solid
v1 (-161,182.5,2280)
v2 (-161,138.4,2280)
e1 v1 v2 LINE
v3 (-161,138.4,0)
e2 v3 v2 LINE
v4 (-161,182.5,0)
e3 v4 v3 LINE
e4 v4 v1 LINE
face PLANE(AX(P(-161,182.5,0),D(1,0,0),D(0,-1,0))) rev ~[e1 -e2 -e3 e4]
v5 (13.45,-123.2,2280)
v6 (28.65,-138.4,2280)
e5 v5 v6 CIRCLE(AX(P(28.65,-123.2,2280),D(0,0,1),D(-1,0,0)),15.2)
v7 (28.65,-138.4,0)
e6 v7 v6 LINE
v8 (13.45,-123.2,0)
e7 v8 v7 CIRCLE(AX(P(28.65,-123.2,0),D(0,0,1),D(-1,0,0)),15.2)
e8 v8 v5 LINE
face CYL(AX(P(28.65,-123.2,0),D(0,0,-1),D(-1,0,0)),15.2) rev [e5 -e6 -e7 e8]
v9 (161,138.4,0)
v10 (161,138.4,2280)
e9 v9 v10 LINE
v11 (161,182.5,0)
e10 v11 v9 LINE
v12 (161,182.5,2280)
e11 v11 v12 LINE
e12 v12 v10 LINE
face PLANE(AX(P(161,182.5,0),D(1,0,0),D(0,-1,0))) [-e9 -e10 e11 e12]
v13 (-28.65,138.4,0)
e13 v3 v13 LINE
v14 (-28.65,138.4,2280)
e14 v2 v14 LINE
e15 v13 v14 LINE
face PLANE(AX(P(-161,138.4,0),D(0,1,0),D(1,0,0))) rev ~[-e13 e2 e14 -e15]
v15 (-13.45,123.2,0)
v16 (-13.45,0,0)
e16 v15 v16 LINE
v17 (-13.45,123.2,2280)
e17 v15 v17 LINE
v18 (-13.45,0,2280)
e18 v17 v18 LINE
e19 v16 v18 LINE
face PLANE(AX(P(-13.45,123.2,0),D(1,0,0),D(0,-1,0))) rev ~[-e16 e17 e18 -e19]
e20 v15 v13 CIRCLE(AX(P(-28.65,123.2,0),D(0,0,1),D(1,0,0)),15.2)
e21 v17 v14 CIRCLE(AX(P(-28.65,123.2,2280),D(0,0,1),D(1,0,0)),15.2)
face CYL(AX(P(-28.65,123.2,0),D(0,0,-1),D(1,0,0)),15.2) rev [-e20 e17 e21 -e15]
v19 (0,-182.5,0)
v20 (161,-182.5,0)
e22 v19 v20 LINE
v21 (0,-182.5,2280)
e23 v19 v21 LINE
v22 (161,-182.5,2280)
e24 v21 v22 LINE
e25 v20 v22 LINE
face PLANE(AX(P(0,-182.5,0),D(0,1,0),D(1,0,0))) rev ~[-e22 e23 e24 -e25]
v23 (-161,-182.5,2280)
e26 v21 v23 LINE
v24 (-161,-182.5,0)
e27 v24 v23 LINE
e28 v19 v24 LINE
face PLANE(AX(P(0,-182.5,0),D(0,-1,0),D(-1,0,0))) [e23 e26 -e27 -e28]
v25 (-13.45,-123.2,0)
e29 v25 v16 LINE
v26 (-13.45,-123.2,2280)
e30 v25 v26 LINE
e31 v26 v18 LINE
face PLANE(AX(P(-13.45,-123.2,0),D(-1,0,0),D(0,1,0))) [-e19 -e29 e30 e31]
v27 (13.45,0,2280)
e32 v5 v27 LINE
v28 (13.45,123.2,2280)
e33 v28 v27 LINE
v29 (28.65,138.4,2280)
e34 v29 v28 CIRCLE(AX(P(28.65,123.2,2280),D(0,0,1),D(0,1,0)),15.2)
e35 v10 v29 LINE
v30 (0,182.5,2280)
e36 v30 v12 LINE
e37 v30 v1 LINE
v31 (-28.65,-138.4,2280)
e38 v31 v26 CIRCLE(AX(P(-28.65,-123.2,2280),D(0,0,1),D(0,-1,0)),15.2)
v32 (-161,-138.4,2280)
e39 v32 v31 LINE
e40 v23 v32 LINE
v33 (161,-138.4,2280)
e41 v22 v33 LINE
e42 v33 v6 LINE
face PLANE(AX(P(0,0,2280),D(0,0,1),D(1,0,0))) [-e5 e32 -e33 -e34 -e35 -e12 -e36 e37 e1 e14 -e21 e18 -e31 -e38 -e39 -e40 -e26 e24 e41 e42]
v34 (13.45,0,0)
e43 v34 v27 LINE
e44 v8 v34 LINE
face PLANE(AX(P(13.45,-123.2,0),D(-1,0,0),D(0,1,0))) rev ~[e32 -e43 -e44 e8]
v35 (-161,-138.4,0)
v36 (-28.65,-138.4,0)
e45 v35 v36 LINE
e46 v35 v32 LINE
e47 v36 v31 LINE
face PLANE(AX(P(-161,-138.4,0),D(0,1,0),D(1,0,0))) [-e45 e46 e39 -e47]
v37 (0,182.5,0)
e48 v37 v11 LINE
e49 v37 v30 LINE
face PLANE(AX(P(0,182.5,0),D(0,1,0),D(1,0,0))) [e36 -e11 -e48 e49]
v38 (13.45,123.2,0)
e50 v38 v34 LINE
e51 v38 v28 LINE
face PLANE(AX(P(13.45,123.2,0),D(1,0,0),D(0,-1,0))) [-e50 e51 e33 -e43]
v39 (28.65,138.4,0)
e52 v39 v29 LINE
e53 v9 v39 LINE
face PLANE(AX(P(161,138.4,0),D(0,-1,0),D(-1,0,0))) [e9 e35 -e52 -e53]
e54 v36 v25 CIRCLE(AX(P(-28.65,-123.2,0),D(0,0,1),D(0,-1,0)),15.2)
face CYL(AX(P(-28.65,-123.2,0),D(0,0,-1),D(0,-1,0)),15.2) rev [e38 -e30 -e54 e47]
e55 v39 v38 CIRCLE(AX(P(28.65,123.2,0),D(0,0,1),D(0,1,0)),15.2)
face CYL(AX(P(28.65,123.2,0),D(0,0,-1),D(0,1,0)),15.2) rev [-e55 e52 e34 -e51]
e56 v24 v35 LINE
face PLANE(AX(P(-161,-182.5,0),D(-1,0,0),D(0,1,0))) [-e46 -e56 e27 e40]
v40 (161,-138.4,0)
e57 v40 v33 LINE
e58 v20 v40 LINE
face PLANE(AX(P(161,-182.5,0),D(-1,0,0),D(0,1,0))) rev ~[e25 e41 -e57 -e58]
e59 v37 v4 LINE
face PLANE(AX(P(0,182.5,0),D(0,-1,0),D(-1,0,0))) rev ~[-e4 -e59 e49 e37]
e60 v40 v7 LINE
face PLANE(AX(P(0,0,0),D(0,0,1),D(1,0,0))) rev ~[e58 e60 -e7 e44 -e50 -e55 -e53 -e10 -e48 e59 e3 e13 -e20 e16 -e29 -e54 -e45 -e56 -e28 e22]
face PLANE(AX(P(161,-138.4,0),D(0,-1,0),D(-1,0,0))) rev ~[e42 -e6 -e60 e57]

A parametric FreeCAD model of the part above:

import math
import FreeCAD as App
import Part
import Sketcher
from FreeCAD import Vector

doc = App.newDocument("Part")
params = doc.addObject("Spreadsheet::Sheet", "Params")
for row, (alias, value) in enumerate([
    ("sketch1_radius", "15.2 mm"),
    ("sketch1_height", "44.1 mm"),
    ("pad1_length", "2280 mm"),
], start=1):
    params.set(f"A{row}", alias)
    params.set(f"B{row}", "=" + value)
    params.setAlias(f"B{row}", alias)

body = doc.addObject("PartDesign::Body", "Body")

sketch1 = body.newObject("Sketcher::SketchObject", "Sketch")
sketch1.AttachmentSupport = (doc.getObject("XY_Plane"), [""])
sketch1.MapMode = "FlatFace"
sketch1.addGeometry(Part.LineSegment(Vector(-161, -138.4, 0), Vector(-161, -182.5, 0)), False)
sketch1.addGeometry(Part.LineSegment(Vector(-161, -182.5, 0), Vector(161, -182.5, 0)), False)
sketch1.addGeometry(Part.LineSegment(Vector(161, -182.5, 0), Vector(161, -138.4, 0)), False)
sketch1.addGeometry(Part.LineSegment(Vector(161, -138.4, 0), Vector(28.65, -138.4, 0)), False)
sketch1.addGeometry(Part.ArcOfCircle(Part.Circle(Vector(28.65, -123.2, 0), Vector(0, 0, 1), 15.2), math.radians(180), math.radians(270)), False)
sketch1.addGeometry(Part.LineSegment(Vector(13.45, -123.2, 0), Vector(13.45, 123.2, 0)), False)
sketch1.addGeometry(Part.ArcOfCircle(Part.Circle(Vector(28.65, 123.2, 0), Vector(0, 0, 1), 15.2), math.radians(90), math.radians(180)), False)
sketch1.addGeometry(Part.LineSegment(Vector(28.65, 138.4, 0), Vector(161, 138.4, 0)), False)
sketch1.addGeometry(Part.LineSegment(Vector(161, 138.4, 0), Vector(161, 182.5, 0)), False)
sketch1.addGeometry(Part.LineSegment(Vector(161, 182.5, 0), Vector(-161, 182.5, 0)), False)
sketch1.addGeometry(Part.LineSegment(Vector(-161, 182.5, 0), Vector(-161, 138.4, 0)), False)
sketch1.addGeometry(Part.LineSegment(Vector(-161, 138.4, 0), Vector(-28.65, 138.4, 0)), False)
sketch1.addGeometry(Part.ArcOfCircle(Part.Circle(Vector(-28.65, 123.2, 0), Vector(0, 0, 1), 15.2), math.radians(0), math.radians(90)), False)
sketch1.addGeometry(Part.LineSegment(Vector(-13.45, 123.2, 0), Vector(-13.45, -123.2, 0)), False)
sketch1.addGeometry(Part.ArcOfCircle(Part.Circle(Vector(-28.65, -123.2, 0), Vector(0, 0, 1), 15.2), math.radians(-90), math.radians(0)), False)
sketch1.addGeometry(Part.LineSegment(Vector(-28.65, -138.4, 0), Vector(-161, -138.4, 0)), False)
sketch1.addConstraint(Sketcher.Constraint("Coincident", 0, 2, 1, 1))
sketch1.addConstraint(Sketcher.Constraint("Coincident", 1, 2, 2, 1))
sketch1.addConstraint(Sketcher.Constraint("Coincident", 2, 2, 3, 1))
sketch1.addConstraint(Sketcher.Constraint("Tangent", 3, 2, 4, 2))
sketch1.addConstraint(Sketcher.Constraint("Tangent", 4, 1, 5, 1))
sketch1.addConstraint(Sketcher.Constraint("Tangent", 5, 2, 6, 2))
sketch1.addConstraint(Sketcher.Constraint("Tangent", 6, 1, 7, 1))
sketch1.addConstraint(Sketcher.Constraint("Coincident", 7, 2, 8, 1))
sketch1.addConstraint(Sketcher.Constraint("Coincident", 8, 2, 9, 1))
sketch1.addConstraint(Sketcher.Constraint("Coincident", 9, 2, 10, 1))
sketch1.addConstraint(Sketcher.Constraint("Coincident", 10, 2, 11, 1))
sketch1.addConstraint(Sketcher.Constraint("Tangent", 11, 2, 12, 2))
sketch1.addConstraint(Sketcher.Constraint("Tangent", 12, 1, 13, 1))
sketch1.addConstraint(Sketcher.Constraint("Tangent", 13, 2, 14, 2))
sketch1.addConstraint(Sketcher.Constraint("Tangent", 14, 1, 15, 1))
sketch1.addConstraint(Sketcher.Constraint("Coincident", 15, 2, 0, 1))
sketch1.addConstraint(Sketcher.Constraint("Vertical", 0))
sketch1.addConstraint(Sketcher.Constraint("Horizontal", 1))
sketch1.addConstraint(Sketcher.Constraint("Vertical", 2))
sketch1.addConstraint(Sketcher.Constraint("Horizontal", 3))
sketch1.addConstraint(Sketcher.Constraint("Vertical", 5))
sketch1.addConstraint(Sketcher.Constraint("Horizontal", 7))
sketch1.addConstraint(Sketcher.Constraint("Vertical", 8))
sketch1.addConstraint(Sketcher.Constraint("Horizontal", 9))
sketch1.addConstraint(Sketcher.Constraint("Vertical", 10))
sketch1.addConstraint(Sketcher.Constraint("Horizontal", 11))
sketch1.addConstraint(Sketcher.Constraint("Vertical", 13))
sketch1.addConstraint(Sketcher.Constraint("Horizontal", 15))
sketch1.addConstraint(Sketcher.Constraint("Equal", 4, 6))
sketch1.addConstraint(Sketcher.Constraint("Equal", 6, 12))
sketch1.addConstraint(Sketcher.Constraint("Equal", 12, 14))
sketch1.addConstraint(Sketcher.Constraint("Symmetric", 4, 3, 12, 3, -1, 1))
sketch1.addConstraint(Sketcher.Constraint("Symmetric", 0, 2, 8, 2, -1, 1))
sketch1.addConstraint(Sketcher.Constraint("Symmetric", 7, 2, 10, 2, -2))
sketch1.addConstraint(Sketcher.Constraint("Symmetric", 2, 2, 15, 2, -2))
sketch1.addConstraint(Sketcher.Constraint("Radius", 4, 15.2))
sketch1.addConstraint(Sketcher.Constraint("DistanceY", 0, 2, 0, 1, 44.1))
sketch1.addConstraint(Sketcher.Constraint("DistanceX", 0, 2, -1, 1, 161.0))
sketch1.addConstraint(Sketcher.Constraint("DistanceY", 0, 2, -1, 1, 182.5))
sketch1.addConstraint(Sketcher.Constraint("DistanceX", -1, 1, 4, 1, 13.45))
sketch1.setExpression("Constraints[35]", "Params.sketch1_radius")
sketch1.setExpression("Constraints[36]", "Params.sketch1_height")
pad1 = body.newObject("PartDesign::Pad", "Pad")
pad1.Profile = sketch1
pad1.setExpression("Length", "Params.pad1_length")

doc.recompute()
